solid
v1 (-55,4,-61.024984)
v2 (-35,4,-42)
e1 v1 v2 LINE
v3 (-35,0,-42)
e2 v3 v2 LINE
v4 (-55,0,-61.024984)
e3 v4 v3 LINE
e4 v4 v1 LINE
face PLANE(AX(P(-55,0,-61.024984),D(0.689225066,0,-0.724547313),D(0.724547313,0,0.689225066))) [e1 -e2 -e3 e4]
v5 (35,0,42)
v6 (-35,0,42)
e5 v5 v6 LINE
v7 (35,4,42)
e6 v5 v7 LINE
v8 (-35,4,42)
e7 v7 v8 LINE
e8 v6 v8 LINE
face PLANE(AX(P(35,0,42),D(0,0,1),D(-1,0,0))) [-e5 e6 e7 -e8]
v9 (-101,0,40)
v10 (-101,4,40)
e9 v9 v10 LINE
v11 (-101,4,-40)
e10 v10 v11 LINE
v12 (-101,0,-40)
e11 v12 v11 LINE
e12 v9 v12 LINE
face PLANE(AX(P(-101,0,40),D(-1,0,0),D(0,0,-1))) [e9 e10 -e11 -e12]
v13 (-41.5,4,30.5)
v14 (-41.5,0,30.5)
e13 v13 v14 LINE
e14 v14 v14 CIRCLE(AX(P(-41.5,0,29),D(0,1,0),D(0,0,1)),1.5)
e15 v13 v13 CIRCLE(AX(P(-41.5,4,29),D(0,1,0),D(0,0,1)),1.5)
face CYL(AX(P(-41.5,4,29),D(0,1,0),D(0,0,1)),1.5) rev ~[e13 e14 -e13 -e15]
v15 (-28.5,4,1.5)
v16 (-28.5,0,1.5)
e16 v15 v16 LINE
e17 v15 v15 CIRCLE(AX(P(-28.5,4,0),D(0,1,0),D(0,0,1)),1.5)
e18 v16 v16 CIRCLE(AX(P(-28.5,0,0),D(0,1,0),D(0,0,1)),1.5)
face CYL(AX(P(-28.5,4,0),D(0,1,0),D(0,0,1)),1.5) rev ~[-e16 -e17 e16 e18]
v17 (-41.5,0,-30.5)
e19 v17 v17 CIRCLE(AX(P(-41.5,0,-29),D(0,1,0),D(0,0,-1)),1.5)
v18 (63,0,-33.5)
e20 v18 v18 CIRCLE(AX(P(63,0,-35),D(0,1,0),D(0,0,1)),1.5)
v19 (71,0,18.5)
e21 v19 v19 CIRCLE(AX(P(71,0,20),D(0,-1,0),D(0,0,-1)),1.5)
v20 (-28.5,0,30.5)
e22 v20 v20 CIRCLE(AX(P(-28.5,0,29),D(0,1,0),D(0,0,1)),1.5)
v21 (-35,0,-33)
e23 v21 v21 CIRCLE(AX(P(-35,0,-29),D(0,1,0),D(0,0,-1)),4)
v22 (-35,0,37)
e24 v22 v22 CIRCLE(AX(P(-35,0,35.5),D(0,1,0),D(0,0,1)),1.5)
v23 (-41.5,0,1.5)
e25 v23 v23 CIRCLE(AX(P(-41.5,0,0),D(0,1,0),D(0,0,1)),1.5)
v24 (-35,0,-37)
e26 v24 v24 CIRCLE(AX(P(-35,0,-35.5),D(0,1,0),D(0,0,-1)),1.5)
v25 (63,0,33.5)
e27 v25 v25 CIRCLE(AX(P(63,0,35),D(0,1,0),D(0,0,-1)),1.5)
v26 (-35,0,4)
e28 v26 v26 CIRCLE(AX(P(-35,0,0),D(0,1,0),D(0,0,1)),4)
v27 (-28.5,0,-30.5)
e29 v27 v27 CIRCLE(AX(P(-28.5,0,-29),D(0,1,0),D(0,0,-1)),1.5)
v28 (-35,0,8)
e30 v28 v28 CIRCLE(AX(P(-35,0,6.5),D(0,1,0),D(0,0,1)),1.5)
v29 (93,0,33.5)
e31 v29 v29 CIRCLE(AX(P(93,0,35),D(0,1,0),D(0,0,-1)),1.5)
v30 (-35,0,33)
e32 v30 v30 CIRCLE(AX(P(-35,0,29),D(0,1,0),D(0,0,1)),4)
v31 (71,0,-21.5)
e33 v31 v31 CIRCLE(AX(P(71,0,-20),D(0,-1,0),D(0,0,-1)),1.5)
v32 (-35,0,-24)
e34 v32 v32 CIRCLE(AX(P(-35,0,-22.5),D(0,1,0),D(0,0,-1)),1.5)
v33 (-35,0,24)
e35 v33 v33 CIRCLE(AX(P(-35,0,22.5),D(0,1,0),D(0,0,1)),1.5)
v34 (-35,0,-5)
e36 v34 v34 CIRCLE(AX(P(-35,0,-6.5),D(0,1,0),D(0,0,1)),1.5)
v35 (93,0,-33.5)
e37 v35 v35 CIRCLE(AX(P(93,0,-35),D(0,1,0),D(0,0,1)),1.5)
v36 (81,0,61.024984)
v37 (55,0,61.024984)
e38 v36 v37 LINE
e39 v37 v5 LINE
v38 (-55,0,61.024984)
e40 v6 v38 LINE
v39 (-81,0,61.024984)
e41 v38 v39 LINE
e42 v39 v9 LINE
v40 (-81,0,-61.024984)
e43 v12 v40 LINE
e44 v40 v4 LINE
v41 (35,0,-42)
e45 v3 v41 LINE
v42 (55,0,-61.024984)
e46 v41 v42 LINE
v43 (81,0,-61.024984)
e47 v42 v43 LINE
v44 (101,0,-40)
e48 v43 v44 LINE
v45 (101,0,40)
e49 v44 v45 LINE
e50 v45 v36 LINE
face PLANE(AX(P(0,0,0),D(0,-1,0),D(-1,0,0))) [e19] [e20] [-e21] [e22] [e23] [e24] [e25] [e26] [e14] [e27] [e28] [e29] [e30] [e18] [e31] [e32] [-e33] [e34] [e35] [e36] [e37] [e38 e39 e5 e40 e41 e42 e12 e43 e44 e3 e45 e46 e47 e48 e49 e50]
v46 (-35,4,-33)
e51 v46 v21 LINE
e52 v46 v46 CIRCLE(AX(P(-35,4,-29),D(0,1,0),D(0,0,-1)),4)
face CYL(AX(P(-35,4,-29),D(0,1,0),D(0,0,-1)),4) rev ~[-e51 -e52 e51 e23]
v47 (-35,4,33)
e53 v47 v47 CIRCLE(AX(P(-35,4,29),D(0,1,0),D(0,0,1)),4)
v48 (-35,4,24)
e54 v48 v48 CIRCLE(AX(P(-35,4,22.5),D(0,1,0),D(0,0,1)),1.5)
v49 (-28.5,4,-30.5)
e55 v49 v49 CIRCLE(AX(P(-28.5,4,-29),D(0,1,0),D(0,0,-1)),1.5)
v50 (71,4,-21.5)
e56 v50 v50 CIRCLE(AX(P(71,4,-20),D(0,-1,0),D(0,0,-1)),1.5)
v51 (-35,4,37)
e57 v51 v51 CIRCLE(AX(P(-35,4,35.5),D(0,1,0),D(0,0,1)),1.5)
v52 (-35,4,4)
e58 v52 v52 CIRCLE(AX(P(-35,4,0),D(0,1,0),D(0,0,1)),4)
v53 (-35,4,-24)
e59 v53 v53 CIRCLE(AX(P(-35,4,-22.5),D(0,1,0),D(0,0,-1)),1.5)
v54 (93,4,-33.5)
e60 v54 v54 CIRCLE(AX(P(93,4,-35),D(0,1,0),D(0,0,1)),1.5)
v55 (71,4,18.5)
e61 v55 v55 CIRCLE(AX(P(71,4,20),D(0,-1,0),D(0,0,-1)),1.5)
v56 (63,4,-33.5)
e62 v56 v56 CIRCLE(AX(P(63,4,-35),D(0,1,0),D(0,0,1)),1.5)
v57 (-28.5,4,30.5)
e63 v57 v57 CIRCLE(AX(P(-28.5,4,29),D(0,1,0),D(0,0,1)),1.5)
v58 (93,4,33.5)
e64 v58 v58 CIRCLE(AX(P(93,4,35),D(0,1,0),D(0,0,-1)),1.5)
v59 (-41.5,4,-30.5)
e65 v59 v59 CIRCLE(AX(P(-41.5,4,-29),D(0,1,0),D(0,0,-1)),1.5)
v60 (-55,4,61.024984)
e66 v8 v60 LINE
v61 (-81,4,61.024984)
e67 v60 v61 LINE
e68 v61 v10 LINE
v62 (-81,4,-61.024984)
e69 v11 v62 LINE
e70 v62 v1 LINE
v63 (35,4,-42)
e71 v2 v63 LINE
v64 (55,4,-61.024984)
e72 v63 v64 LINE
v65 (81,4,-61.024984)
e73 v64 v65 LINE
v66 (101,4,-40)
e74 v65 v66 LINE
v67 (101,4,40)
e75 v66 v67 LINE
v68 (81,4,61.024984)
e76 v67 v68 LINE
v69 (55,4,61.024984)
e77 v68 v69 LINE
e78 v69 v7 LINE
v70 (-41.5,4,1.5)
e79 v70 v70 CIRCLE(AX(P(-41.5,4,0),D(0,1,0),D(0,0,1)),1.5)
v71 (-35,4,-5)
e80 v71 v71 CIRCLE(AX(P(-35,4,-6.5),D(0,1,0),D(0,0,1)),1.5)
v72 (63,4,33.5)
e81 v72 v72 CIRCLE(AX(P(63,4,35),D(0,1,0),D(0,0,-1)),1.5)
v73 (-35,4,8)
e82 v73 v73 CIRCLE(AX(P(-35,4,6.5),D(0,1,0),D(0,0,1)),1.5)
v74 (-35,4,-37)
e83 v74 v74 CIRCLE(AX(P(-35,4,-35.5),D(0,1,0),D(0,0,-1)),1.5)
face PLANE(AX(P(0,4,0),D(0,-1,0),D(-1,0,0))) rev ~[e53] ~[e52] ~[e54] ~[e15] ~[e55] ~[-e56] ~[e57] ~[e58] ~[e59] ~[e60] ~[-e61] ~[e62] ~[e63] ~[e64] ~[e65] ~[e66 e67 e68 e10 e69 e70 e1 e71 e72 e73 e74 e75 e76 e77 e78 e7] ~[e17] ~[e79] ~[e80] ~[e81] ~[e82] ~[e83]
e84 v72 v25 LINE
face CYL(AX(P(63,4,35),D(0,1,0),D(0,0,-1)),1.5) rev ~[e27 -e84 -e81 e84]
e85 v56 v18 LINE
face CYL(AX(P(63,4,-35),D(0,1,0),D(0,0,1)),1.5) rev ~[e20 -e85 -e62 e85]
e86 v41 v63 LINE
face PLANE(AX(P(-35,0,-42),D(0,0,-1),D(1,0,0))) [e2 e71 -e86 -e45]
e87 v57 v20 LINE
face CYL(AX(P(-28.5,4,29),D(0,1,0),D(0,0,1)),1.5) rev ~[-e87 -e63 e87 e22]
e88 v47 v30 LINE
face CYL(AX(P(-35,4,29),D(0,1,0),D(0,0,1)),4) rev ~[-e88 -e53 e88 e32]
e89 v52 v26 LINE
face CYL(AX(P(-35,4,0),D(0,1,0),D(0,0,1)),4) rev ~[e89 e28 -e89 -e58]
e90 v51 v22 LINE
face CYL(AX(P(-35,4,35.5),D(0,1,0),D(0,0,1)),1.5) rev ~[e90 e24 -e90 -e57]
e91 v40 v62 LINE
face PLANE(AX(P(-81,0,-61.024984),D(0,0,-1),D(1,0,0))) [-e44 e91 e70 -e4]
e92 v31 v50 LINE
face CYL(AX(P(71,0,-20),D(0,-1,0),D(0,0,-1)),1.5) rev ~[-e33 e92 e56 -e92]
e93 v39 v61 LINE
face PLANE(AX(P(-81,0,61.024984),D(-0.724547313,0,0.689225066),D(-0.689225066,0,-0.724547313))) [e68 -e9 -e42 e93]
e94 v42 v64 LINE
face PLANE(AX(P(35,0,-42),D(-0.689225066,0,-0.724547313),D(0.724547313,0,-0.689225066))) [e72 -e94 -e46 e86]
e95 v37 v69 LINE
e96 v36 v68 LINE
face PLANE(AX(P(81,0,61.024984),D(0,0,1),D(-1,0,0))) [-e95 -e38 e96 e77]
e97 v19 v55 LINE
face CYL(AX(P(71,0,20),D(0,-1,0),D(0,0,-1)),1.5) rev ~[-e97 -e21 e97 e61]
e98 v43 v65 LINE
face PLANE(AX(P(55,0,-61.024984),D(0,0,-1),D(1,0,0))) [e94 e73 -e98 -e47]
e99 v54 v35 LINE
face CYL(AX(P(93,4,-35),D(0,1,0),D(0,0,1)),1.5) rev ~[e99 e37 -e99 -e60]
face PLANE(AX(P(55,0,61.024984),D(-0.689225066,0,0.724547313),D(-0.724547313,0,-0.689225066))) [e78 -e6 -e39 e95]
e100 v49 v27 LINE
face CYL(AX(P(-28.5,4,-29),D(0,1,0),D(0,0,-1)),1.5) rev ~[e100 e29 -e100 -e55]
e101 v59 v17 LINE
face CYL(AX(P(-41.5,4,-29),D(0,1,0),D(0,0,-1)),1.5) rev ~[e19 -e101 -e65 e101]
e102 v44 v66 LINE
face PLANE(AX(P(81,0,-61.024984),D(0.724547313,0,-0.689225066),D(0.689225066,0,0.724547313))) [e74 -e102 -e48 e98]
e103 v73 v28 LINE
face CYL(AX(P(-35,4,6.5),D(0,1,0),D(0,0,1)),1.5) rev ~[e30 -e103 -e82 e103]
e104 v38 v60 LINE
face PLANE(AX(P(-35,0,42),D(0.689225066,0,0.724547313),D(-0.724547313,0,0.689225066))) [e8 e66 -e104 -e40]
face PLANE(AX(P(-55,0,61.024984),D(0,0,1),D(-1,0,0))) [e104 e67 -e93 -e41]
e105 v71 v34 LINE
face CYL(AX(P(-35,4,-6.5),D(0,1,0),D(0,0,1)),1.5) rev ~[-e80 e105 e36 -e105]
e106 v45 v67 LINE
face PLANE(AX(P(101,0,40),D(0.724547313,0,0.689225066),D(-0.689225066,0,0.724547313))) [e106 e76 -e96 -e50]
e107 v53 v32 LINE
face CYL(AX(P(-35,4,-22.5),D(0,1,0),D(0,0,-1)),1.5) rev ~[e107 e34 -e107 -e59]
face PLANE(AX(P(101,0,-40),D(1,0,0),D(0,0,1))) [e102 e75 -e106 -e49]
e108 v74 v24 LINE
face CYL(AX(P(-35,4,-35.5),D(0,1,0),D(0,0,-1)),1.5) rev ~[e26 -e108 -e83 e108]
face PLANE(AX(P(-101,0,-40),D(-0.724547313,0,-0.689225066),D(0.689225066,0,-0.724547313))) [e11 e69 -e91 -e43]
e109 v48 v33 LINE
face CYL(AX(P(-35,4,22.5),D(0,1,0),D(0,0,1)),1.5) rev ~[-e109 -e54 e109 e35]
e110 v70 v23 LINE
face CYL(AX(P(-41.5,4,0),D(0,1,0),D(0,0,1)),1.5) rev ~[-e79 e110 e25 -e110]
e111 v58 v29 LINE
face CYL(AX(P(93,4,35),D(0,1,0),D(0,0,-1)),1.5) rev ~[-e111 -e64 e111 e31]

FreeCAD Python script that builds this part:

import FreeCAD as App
import Part
import Sketcher

V = App.Vector
Q = App.Units.Quantity


def add_polygon(sketch, points):
    """Adds a closed chain of lines whose ends are joined by coincident constraints."""
    first, n = sketch.GeometryCount, len(points)
    for a, b in zip(points, points[1:] + points[:1]):
        sketch.addGeometry(Part.LineSegment(App.Vector(*a, 0), App.Vector(*b, 0)), False)
    for i in range(n):
        sketch.addConstraint(Sketcher.Constraint("Coincident", first + i, 2, first + (i + 1) % n, 1))

doc = App.newDocument("Part")
body = doc.addObject("PartDesign::Body", "Body")

# Sketch on XZ plane
sketch1 = doc.addObject("Sketcher::SketchObject", "Sketch")
body.addObject(sketch1)
sketch1.AttachmentSupport = (doc.XZ_Plane, [""])
sketch1.MapMode = "FlatFace"
add_polygon(sketch1, [(-35, -42), (-55, -61), (-81, -61), (-101, -40), (-101, 40), (-81, 61), (-55, 61), (-35, 42), (35, 42), (55, 61), (81, 61), (101, 40), (101, -40), (81, -61), (55, -61), (35, -42)])  # lines 0-15
sketch1.addConstraint([
    Sketcher.Constraint("Horizontal", 1),
    Sketcher.Constraint("Vertical", 3),
    Sketcher.Constraint("Horizontal", 5),
    Sketcher.Constraint("Horizontal", 7),
    Sketcher.Constraint("Horizontal", 9),
    Sketcher.Constraint("Vertical", 11),
    Sketcher.Constraint("Horizontal", 13),
    Sketcher.Constraint("Horizontal", 15),
    Sketcher.Constraint("Symmetric", 0, 2, 8, 2, -1, 1),
    Sketcher.Constraint("Symmetric", 2, 2, 10, 2, -1, 1),
    Sketcher.Constraint("Symmetric", 4, 2, 12, 2, -1, 1),
    Sketcher.Constraint("Symmetric", 6, 2, 14, 2, -1, 1),
    Sketcher.Constraint("Symmetric", 5, 2, 8, 2, -2),
    Sketcher.Constraint("Perpendicular", 0, 2),
    Sketcher.Constraint("Perpendicular", 4, 6),
    Sketcher.Constraint("Perpendicular", 2, 8),
    Sketcher.Constraint("Perpendicular", 8, 10),
    Sketcher.Constraint("Perpendicular", 6, 12),
    Sketcher.Constraint("Perpendicular", 12, 14),
    Sketcher.Constraint("Horizontal", 3, 2, 10, 2),
    Sketcher.Constraint("Vertical", 1, 2, 4, 2),
    Sketcher.Constraint("DistanceX", 1, 2, 1, 1, Q("26 mm")),
    Sketcher.Constraint("DistanceX", 7, 1, 7, 2, Q("70 mm")),
    Sketcher.Constraint("DistanceY", 3, 1, 3, 2, Q("80 mm")),
    Sketcher.Constraint("DistanceX", 0, 2, -1, 1, Q("55 mm")),
    Sketcher.Constraint("DistanceX", 2, 2, -1, 1, Q("101 mm")),
    Sketcher.Constraint("DistanceY", -1, 1, 6, 2, Q("42 mm")),
])
pad1 = doc.addObject("PartDesign::Pad", "Pad")
body.addObject(pad1)
pad1.Profile = sketch1
pad1.Length = 4
pad1.Reversed = True

# Sketch on XZ plane
sketch2 = doc.addObject("Sketcher::SketchObject", "Sketch001")
body.addObject(sketch2)
sketch2.AttachmentSupport = (doc.XZ_Plane, [""])
sketch2.MapMode = "FlatFace"
sketch2.AttachmentOffset = App.Placement(V(0, 0, -4), App.Rotation())
sketch2.addGeometry([
    Part.Circle(V(-35, 29, 0), V(0, 0, 1), 4),  # 0
    Part.Circle(V(-28.5, 29, 0), V(0, 0, 1), 1.5),  # 1
    Part.Circle(V(-41.5, 29, 0), V(0, 0, 1), 1.5),  # 2
    Part.Circle(V(-35, 22.5, 0), V(0, 0, 1), 1.5),  # 3
    Part.Circle(V(-35, 35.5, 0), V(0, 0, 1), 1.5),  # 4
    Part.Circle(V(-35, -35.5, 0), V(0, 0, 1), 1.5),  # 5
    Part.Circle(V(-35, -22.5, 0), V(0, 0, 1), 1.5),  # 6
    Part.Circle(V(-41.5, -29, 0), V(0, 0, 1), 1.5),  # 7
    Part.Circle(V(-28.5, -29, 0), V(0, 0, 1), 1.5),  # 8
    Part.Circle(V(-35, -29, 0), V(0, 0, 1), 4),  # 9
    Part.Circle(V(-35, 0, 0), V(0, 0, 1), 4),  # 10
    Part.Circle(V(-35, -6.5, 0), V(0, 0, 1), 1.5),  # 11
    Part.Circle(V(-28.5, 0, 0), V(0, 0, 1), 1.5),  # 12
    Part.Circle(V(-41.5, 0, 0), V(0, 0, 1), 1.5),  # 13
    Part.Circle(V(-35, 6.5, 0), V(0, 0, 1), 1.5),  # 14
], False)
sketch2.addConstraint([
    Sketcher.Constraint("Equal", 1, 2),
    Sketcher.Constraint("Equal", 2, 3),
    Sketcher.Constraint("Equal", 3, 4),
    Sketcher.Constraint("Equal", 4, 5),
    Sketcher.Constraint("Equal", 5, 6),
    Sketcher.Constraint("Equal", 6, 7),
    Sketcher.Constraint("Equal", 7, 8),
    Sketcher.Constraint("Equal", 0, 9),
    Sketcher.Constraint("Equal", 9, 10),
    Sketcher.Constraint("Equal", 8, 11),
    Sketcher.Constraint("Equal", 11, 12),
    Sketcher.Constraint("Equal", 12, 13),
    Sketcher.Constraint("Equal", 13, 14),
    Sketcher.Constraint("Symmetric", 4, 3, 5, 3, -1),
    Sketcher.Constraint("Symmetric", 3, 3, 6, 3, -1),
    Sketcher.Constraint("Symmetric", 2, 3, 7, 3, -1),
    Sketcher.Constraint("Symmetric", 1, 3, 8, 3, -1),
    Sketcher.Constraint("Symmetric", 0, 3, 9, 3, -1),
    Sketcher.Constraint("Symmetric", 11, 3, 14, 3, -1),
    Sketcher.Constraint("PointOnObject", 10, 3, -1),
    Sketcher.Constraint("PointOnObject", 12, 3, -1),
    Sketcher.Constraint("PointOnObject", 13, 3, -1),
    Sketcher.Constraint("Horizontal", 0, 3, 1, 3),
    Sketcher.Constraint("Horizontal", 1, 3, 2, 3),
    Sketcher.Constraint("Vertical", 0, 3, 3, 3),
    Sketcher.Constraint("Vertical", 3, 3, 4, 3),
    Sketcher.Constraint("Vertical", 9, 3, 10, 3),
    Sketcher.Constraint("Vertical", 10, 3, 11, 3),
    Sketcher.Constraint("Vertical", 8, 3, 12, 3),
    Sketcher.Constraint("Vertical", 7, 3, 13, 3),
    Sketcher.Constraint("Diameter", 0, Q("8 mm")),
    Sketcher.Constraint("Diameter", 1, Q("3 mm")),
    Sketcher.Constraint("DistanceX", 0, 3, -1, 1, Q("35 mm")),
    Sketcher.Constraint("DistanceY", -1, 1, 0, 3, Q("29 mm")),
    Sketcher.Constraint("DistanceX", 2, 3, 1, 3, Q("13 mm")),
    Sketcher.Constraint("DistanceY", 3, 3, 4, 3, Q("13 mm")),
    Sketcher.Constraint("DistanceY", 5, 3, 3, 3, Q("58 mm")),
    Sketcher.Constraint("DistanceY", 6, 3, 11, 3, Q("16 mm")),
    Sketcher.Constraint("DistanceX", 1, 3, -1, 1, Q("28.5 mm")),
])
pocket1 = doc.addObject("PartDesign::Pocket", "Pocket")
body.addObject(pocket1)
pocket1.Profile = sketch2
pocket1.Type = "ThroughAll"
pocket1.Reversed = True

# Sketch on XZ plane
sketch3 = doc.addObject("Sketcher::SketchObject", "Sketch002")
body.addObject(sketch3)
sketch3.AttachmentSupport = (doc.XZ_Plane, [""])
sketch3.MapMode = "FlatFace"
sketch3.AttachmentOffset = App.Placement(V(0, 0, -4), App.Rotation())
sketch3.addGeometry([
    Part.Circle(V(93, -35, 0), V(0, 0, 1), 1.5),
    Part.Circle(V(63, -35, 0), V(0, 0, 1), 1.5),
    Part.Circle(V(63, 35, 0), V(0, 0, 1), 1.5),
    Part.Circle(V(93, 35, 0), V(0, 0, 1), 1.5),
], False)
sketch3.addConstraint([
    Sketcher.Constraint("Equal", 0, 1),
    Sketcher.Constraint("Equal", 1, 2),
    Sketcher.Constraint("Equal", 2, 3),
    Sketcher.Constraint("Symmetric", 1, 3, 2, 3, -1),
    Sketcher.Constraint("Symmetric", 0, 3, 3, 3, -1),
    Sketcher.Constraint("Horizontal", 0, 3, 1, 3),
    Sketcher.Constraint("Diameter", 0, Q("3 mm")),
    Sketcher.Constraint("DistanceX", -1, 1, 0, 3, Q("93 mm")),
    Sketcher.Constraint("DistanceY", 0, 3, -1, 1, Q("35 mm")),
    Sketcher.Constraint("DistanceX", -1, 1, 1, 3, Q("63 mm")),
])
pocket2 = doc.addObject("PartDesign::Pocket", "Pocket001")
body.addObject(pocket2)
pocket2.Profile = sketch3
pocket2.Type = "ThroughAll"
pocket2.Reversed = True

# Sketch on XZ plane
sketch4 = doc.addObject("Sketcher::SketchObject", "Sketch003")
body.addObject(sketch4)
sketch4.AttachmentSupport = (doc.XZ_Plane, [""])
sketch4.MapMode = "FlatFace"
sketch4.addGeometry([
    Part.Circle(V(71, 20, 0), V(0, 0, 1), 1.5),
    Part.Circle(V(71, -20, 0), V(0, 0, 1), 1.5),
], False)
sketch4.addConstraint([
    Sketcher.Constraint("Equal", 0, 1),
    Sketcher.Constraint("Symmetric", 0, 3, 1, 3, -1),
    Sketcher.Constraint("Diameter", 0, Q("3 mm")),
    Sketcher.Constraint("DistanceX", -1, 1, 0, 3, Q("71 mm")),
    Sketcher.Constraint("DistanceY", -1, 1, 0, 3, Q("20 mm")),
])
pocket3 = doc.addObject("PartDesign::Pocket", "Pocket002")
body.addObject(pocket3)
pocket3.Profile = sketch4
pocket3.Type = "ThroughAll"

doc.recompute()
